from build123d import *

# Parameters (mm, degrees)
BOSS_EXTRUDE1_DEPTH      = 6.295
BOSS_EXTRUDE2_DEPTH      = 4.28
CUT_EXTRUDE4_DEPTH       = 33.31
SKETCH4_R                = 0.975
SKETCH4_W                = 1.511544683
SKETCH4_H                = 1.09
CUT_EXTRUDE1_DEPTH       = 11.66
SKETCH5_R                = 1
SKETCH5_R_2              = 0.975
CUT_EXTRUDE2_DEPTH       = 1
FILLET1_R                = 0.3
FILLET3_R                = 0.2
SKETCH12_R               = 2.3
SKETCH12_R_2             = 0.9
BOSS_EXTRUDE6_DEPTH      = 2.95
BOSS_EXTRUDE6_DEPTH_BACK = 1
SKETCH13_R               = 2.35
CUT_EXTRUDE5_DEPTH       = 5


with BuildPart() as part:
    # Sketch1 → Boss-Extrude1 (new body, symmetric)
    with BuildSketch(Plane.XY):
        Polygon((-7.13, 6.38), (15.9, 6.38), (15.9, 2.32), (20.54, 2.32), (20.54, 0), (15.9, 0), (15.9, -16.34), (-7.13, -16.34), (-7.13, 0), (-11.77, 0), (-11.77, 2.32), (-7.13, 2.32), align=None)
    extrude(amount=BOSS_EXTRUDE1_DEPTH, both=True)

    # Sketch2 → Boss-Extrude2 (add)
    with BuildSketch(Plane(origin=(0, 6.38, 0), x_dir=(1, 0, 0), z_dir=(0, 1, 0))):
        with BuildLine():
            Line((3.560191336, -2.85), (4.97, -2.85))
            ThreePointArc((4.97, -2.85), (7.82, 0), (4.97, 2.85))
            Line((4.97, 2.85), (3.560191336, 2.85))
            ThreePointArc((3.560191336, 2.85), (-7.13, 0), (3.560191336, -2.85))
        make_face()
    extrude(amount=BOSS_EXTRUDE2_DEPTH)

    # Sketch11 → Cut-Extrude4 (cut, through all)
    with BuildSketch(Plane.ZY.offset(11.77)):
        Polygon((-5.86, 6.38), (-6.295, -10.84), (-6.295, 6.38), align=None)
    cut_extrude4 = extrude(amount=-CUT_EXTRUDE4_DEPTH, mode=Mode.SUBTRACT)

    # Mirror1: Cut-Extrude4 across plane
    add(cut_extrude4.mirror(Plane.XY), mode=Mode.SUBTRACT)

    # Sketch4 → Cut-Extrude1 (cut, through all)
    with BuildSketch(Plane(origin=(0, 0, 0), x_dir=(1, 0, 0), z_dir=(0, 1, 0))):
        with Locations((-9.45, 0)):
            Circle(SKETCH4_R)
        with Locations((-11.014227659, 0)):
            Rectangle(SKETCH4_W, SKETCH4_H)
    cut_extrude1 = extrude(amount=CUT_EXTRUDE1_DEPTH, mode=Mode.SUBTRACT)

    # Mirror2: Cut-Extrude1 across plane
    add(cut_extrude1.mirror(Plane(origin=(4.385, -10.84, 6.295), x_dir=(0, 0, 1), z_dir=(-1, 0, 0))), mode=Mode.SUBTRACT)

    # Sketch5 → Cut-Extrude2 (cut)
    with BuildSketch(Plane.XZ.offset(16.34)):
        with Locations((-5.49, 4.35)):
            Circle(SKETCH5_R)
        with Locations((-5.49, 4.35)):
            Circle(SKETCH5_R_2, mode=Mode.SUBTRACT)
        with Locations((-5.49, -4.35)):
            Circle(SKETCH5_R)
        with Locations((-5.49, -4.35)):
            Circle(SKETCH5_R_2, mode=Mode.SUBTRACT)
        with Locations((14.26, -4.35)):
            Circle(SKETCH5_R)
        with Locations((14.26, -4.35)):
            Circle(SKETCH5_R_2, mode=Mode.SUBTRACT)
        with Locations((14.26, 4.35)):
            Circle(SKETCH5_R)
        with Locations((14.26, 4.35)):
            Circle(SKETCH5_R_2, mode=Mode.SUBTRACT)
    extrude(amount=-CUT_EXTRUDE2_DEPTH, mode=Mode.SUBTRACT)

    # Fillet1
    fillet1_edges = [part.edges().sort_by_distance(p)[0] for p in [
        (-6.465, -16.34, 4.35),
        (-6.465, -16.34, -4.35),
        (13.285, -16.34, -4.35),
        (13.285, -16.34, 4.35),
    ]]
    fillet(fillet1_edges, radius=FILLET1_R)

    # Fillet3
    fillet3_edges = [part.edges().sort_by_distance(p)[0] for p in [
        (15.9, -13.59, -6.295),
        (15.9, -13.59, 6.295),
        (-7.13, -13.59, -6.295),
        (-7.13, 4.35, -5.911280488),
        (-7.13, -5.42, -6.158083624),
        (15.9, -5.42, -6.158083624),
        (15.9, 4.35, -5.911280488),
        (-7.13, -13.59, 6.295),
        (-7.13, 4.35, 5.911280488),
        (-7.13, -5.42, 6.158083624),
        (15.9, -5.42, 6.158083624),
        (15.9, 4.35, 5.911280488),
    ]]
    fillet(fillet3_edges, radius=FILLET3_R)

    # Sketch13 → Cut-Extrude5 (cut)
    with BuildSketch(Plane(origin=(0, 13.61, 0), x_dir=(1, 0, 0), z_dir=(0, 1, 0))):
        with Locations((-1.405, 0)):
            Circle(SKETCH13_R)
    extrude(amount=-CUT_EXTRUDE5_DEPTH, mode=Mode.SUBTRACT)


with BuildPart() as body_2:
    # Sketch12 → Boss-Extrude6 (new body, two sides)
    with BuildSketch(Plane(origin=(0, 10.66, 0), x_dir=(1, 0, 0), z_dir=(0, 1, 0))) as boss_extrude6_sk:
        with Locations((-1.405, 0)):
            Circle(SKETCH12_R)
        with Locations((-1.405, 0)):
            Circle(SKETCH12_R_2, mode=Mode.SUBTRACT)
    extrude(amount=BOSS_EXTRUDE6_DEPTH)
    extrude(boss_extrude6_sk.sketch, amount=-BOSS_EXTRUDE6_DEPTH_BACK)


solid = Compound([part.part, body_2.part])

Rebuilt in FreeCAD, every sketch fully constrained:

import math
import FreeCAD as App
import Part
import Sketcher

V = App.Vector


def edges_at(feature, points):
    """Names of the edges that pass closest to the given points."""
    edges = feature.Shape.Edges
    near = lambda p: min(range(len(edges)), key=lambda i: edges[i].distToShape(Part.Vertex(*p))[0])
    return sorted({f"Edge{near(p) + 1}" for p in points})


def add_polygon(sketch, points):
    """Adds a closed chain of lines whose ends are joined by coincident constraints."""
    first, n = sketch.GeometryCount, len(points)
    for a, b in zip(points, points[1:] + points[:1]):
        sketch.addGeometry(Part.LineSegment(App.Vector(*a, 0), App.Vector(*b, 0)), False)
    for i in range(n):
        sketch.addConstraint(Sketcher.Constraint("Coincident", first + i, 2, first + (i + 1) % n, 1))

doc = App.newDocument("Part")
body = doc.addObject("PartDesign::Body", "Body")

# Sketch on XY plane
sketch1 = body.newObject("Sketcher::SketchObject", "Sketch")
sketch1.AttachmentSupport = (doc.getObject("XY_Plane"), [""])
sketch1.MapMode = "FlatFace"
add_polygon(sketch1, [(15.9, 6.4), (-7.1, 6.4), (-7.1, 2.3), (-11.8, 2.3), (-11.8, 0), (-7.1, 0), (-7.1, -16.3), (15.9, -16.3), (15.9, 0), (20.5, 0), (20.5, 2.3), (15.9, 2.3)])  # lines 0-11
sketch1.addConstraint(Sketcher.Constraint("Horizontal", 0))
sketch1.addConstraint(Sketcher.Constraint("Vertical", 1))
sketch1.addConstraint(Sketcher.Constraint("Horizontal", 2))
sketch1.addConstraint(Sketcher.Constraint("Vertical", 3))
sketch1.addConstraint(Sketcher.Constraint("Horizontal", 4))
sketch1.addConstraint(Sketcher.Constraint("Vertical", 5))
sketch1.addConstraint(Sketcher.Constraint("Horizontal", 6))
sketch1.addConstraint(Sketcher.Constraint("Vertical", 7))
sketch1.addConstraint(Sketcher.Constraint("Horizontal", 8))
sketch1.addConstraint(Sketcher.Constraint("Vertical", 9))
sketch1.addConstraint(Sketcher.Constraint("Horizontal", 10))
sketch1.addConstraint(Sketcher.Constraint("Vertical", 11))
sketch1.addConstraint(Sketcher.Constraint("PointOnObject", 3, 2, -1))
sketch1.addConstraint(Sketcher.Constraint("PointOnObject", 7, 2, -1))
sketch1.addConstraint(Sketcher.Constraint("Horizontal", 2, 2, 9, 2))
sketch1.addConstraint(Sketcher.Constraint("Vertical", 1, 2, 4, 2))
sketch1.addConstraint(Sketcher.Constraint("Vertical", 7, 2, 10, 2))
sketch1.addConstraint(Sketcher.Constraint("Equal", 4, 8))
sketch1.addConstraint(Sketcher.Constraint("DistanceX", 0, 2, 0, 1, 23.03))
sketch1.addConstraint(Sketcher.Constraint("DistanceX", 2, 2, 2, 1, 4.64))
sketch1.addConstraint(Sketcher.Constraint("DistanceY", 1, 2, 1, 1, 4.06))
sketch1.addConstraint(Sketcher.Constraint("DistanceY", 3, 2, 3, 1, 2.32))
sketch1.addConstraint(Sketcher.Constraint("DistanceY", 5, 2, 5, 1, 16.34))
sketch1.addConstraint(Sketcher.Constraint("DistanceX", -1, 1, 6, 2, 15.9))
pad1 = body.newObject("PartDesign::Pad", "Pad")
pad1.Profile = sketch1
pad1.Length = 12.59
pad1.Midplane = True

# Sketch on XZ plane
sketch2 = body.newObject("Sketcher::SketchObject", "Sketch001")
sketch2.AttachmentSupport = (doc.getObject("XZ_Plane"), [""])
sketch2.MapMode = "FlatFace"
sketch2.AttachmentOffset = App.Placement(V(0, 0, -6.38), App.Rotation())
sketch2.addGeometry(Part.LineSegment(V(3.6, 2.9, 0), V(5, 2.9, 0)), False)
sketch2.addGeometry(Part.ArcOfCircle(Part.Circle(V(5, 0, 0), V(0, 0, 1), 2.9), math.radians(-90), math.radians(90)), False)
sketch2.addGeometry(Part.LineSegment(V(5, -2.9, 0), V(3.6, -2.9, 0)), False)
sketch2.addGeometry(Part.ArcOfCircle(Part.Circle(V(-1.4, 0, 0), V(0, 0, 1), 5.7), math.radians(30), math.radians(330)), False)
sketch2.addConstraint(Sketcher.Constraint("Tangent", 0, 2, 1, 2))
sketch2.addConstraint(Sketcher.Constraint("Tangent", 1, 1, 2, 1))
sketch2.addConstraint(Sketcher.Constraint("Coincident", 2, 2, 3, 2))
sketch2.addConstraint(Sketcher.Constraint("Coincident", 3, 1, 0, 1))
sketch2.addConstraint(Sketcher.Constraint("Horizontal", 0))
sketch2.addConstraint(Sketcher.Constraint("Horizontal", 2))
sketch2.addConstraint(Sketcher.Constraint("Symmetric", 2, 2, 3, 1, -1))
sketch2.addConstraint(Sketcher.Constraint("Radius", 1, 2.85))
sketch2.addConstraint(Sketcher.Constraint("Radius", 3, 5.725))
sketch2.addConstraint(Sketcher.Constraint("DistanceX", -1, 1, 1, 3, 4.97))
sketch2.addConstraint(Sketcher.Constraint("DistanceX", 3, 3, -1, 1, 1.405))
pad2 = body.newObject("PartDesign::Pad", "Pad001")
pad2.Profile = sketch2
pad2.Length = 4.28
pad2.Reversed = True

# Sketch on YZ plane
sketch3 = body.newObject("Sketcher::SketchObject", "Sketch002")
sketch3.AttachmentSupport = (doc.getObject("YZ_Plane"), [""])
sketch3.MapMode = "FlatFace"
sketch3.AttachmentOffset = App.Placement(V(0, 0, -11.77), App.Rotation())
add_polygon(sketch3, [(-10.84, -6.29), (6.38, -5.86), (6.38, -6.29)])  # lines 0-2
sketch3.addConstraint(Sketcher.Constraint("Vertical", 1))
sketch3.addConstraint(Sketcher.Constraint("Horizontal", 2))
sketch3.addConstraint(Sketcher.Constraint("DistanceX", 2, 2, 2, 1, 17.22))
sketch3.addConstraint(Sketcher.Constraint("DistanceY", 1, 2, 1, 1, 0.435))
sketch3.addConstraint(Sketcher.Constraint("DistanceX", -1, 1, 0, 2, 6.38))
sketch3.addConstraint(Sketcher.Constraint("DistanceY", 0, 2, -1, 1, 5.86))
pocket1 = body.newObject("PartDesign::Pocket", "Pocket")
pocket1.Profile = sketch3
pocket1.Type = "ThroughAll"
pocket1.Reversed = True
doc.recompute()

mirrored = body.newObject("PartDesign::Mirrored", "Mirrored")
mirrored.Originals = [pocket1]
mirrored.MirrorPlane = (doc.getObject("XY_Plane"), [""])
body.Tip = mirrored

# Sketch on XZ plane
sketch4 = body.newObject("Sketcher::SketchObject", "Sketch003")
sketch4.AttachmentSupport = (doc.getObject("XZ_Plane"), [""])
sketch4.MapMode = "FlatFace"
sketch4.addGeometry(Part.ArcOfCircle(Part.Circle(V(-9.4, 0, 0), V(0, 0, 1), 1), math.radians(-146), math.radians(146)), False)
sketch4.addGeometry(Part.LineSegment(V(-10.3, -0.5, 0), V(-11.8, -0.5, 0)), False)
sketch4.addGeometry(Part.LineSegment(V(-11.8, -0.5, 0), V(-11.8, 0.5, 0)), False)
sketch4.addGeometry(Part.LineSegment(V(-11.8, 0.5, 0), V(-10.3, 0.5, 0)), False)
sketch4.addConstraint(Sketcher.Constraint("Coincident", 0, 1, 1, 1))
sketch4.addConstraint(Sketcher.Constraint("Coincident", 1, 2, 2, 1))
sketch4.addConstraint(Sketcher.Constraint("Coincident", 2, 2, 3, 1))
sketch4.addConstraint(Sketcher.Constraint("Coincident", 3, 2, 0, 2))
sketch4.addConstraint(Sketcher.Constraint("Horizontal", 1))
sketch4.addConstraint(Sketcher.Constraint("Vertical", 2))
sketch4.addConstraint(Sketcher.Constraint("Horizontal", 3))
sketch4.addConstraint(Sketcher.Constraint("Symmetric", 0, 1, 3, 2, -1))
sketch4.addConstraint(Sketcher.Constraint("Radius", 0, 0.975))
sketch4.addConstraint(Sketcher.Constraint("DistanceY", 2, 1, 2, 2, 1.09))
sketch4.addConstraint(Sketcher.Constraint("DistanceX", 0, 3, -1, 1, 9.45))
sketch4.addConstraint(Sketcher.Constraint("DistanceX", 1, 2, -1, 1, 11.77))
pocket2 = body.newObject("PartDesign::Pocket", "Pocket001")
pocket2.Profile = sketch4
pocket2.Type = "ThroughAll"
doc.recompute()

datumplane = body.newObject("PartDesign::Plane", "DatumPlane")
datumplane.AttachmentSupport = (doc.getObject("YZ_Plane"), [""])
datumplane.MapMode = "FlatFace"
datumplane.AttachmentOffset = App.Placement(V(0, 0, 4.385), App.Rotation())
mirrored2 = body.newObject("PartDesign::Mirrored", "Mirrored001")
mirrored2.Originals = [pocket2]
mirrored2.MirrorPlane = (datumplane, [""])
body.Tip = mirrored2

# Sketch on XZ plane
sketch5 = body.newObject("Sketcher::SketchObject", "Sketch004")
sketch5.AttachmentSupport = (doc.getObject("XZ_Plane"), [""])
sketch5.MapMode = "FlatFace"
sketch5.AttachmentOffset = App.Placement(V(0, 0, 16.34), App.Rotation())
sketch5.addGeometry(Part.Circle(V(-5.5, 4.3, 0), V(0, 0, 1), 1), False)
sketch5.addGeometry(Part.Circle(V(-5.5, 4.3, 0), V(0, 0, 1), 1), False)
sketch5.addGeometry(Part.Circle(V(-5.5, -4.3, 0), V(0, 0, 1), 1), False)
sketch5.addGeometry(Part.Circle(V(-5.5, -4.3, 0), V(0, 0, 1), 1), False)
sketch5.addGeometry(Part.Circle(V(14.3, -4.3, 0), V(0, 0, 1), 1), False)
sketch5.addGeometry(Part.Circle(V(14.3, -4.3, 0), V(0, 0, 1), 1), False)
sketch5.addGeometry(Part.Circle(V(14.3, 4.3, 0), V(0, 0, 1), 1), False)
sketch5.addGeometry(Part.Circle(V(14.3, 4.3, 0), V(0, 0, 1), 1), False)
sketch5.addConstraint(Sketcher.Constraint("Coincident", 1, 3, 0, 3))
sketch5.addConstraint(Sketcher.Constraint("Coincident", 3, 3, 2, 3))
sketch5.addConstraint(Sketcher.Constraint("Coincident", 5, 3, 4, 3))
sketch5.addConstraint(Sketcher.Constraint("Coincident", 7, 3, 6, 3))
sketch5.addConstraint(Sketcher.Constraint("Equal", 0, 2))
sketch5.addConstraint(Sketcher.Constraint("Equal", 1, 3))
sketch5.addConstraint(Sketcher.Constraint("Equal", 2, 4))
sketch5.addConstraint(Sketcher.Constraint("Equal", 3, 5))
sketch5.addConstraint(Sketcher.Constraint("Equal", 4, 6))
sketch5.addConstraint(Sketcher.Constraint("Equal", 5, 7))
sketch5.addConstraint(Sketcher.Constraint("Symmetric", 0, 3, 2, 3, -1))
sketch5.addConstraint(Sketcher.Constraint("Symmetric", 4, 3, 6, 3, -1))
sketch5.addConstraint(Sketcher.Constraint("Horizontal", 3, 3, 4, 3))
sketch5.addConstraint(Sketcher.Constraint("Diameter", 0, 2.0))
sketch5.addConstraint(Sketcher.Constraint("Diameter", 1, 1.95))
sketch5.addConstraint(Sketcher.Constraint("DistanceY", 2, 3, 0, 3, 8.7))
sketch5.addConstraint(Sketcher.Constraint("DistanceX", 0, 3, -1, 1, 5.49))
sketch5.addConstraint(Sketcher.Constraint("DistanceX", -1, 1, 4, 3, 14.26))
pocket3 = body.newObject("PartDesign::Pocket", "Pocket002")
pocket3.Profile = sketch5
pocket3.Length = 1
doc.recompute()

fillet = body.newObject("PartDesign::Fillet", "Fillet")
fillet.Base = (pocket3, edges_at(pocket3, [
    (-6.465, -16.34, 4.35),
    (-6.465, -16.34, -4.35),
    (13.285, -16.34, -4.35),
    (13.285, -16.34, 4.35),
]))
fillet.Radius = 0.3
doc.recompute()

fillet2 = body.newObject("PartDesign::Fillet", "Fillet001")
fillet2.Base = (fillet, edges_at(fillet, [
    (15.9, -13.59, -6.295),
    (15.9, -13.59, 6.295),
    (-7.13, -13.59, -6.295),
    (-7.13, 4.35, -5.911),
    (-7.13, -5.42, -6.158),
    (15.9, -5.42, -6.158),
    (15.9, 4.35, -5.911),
    (-7.13, -13.59, 6.295),
    (-7.13, 4.35, 5.911),
    (-7.13, -5.42, 6.158),
    (15.9, -5.42, 6.158),
    (15.9, 4.35, 5.911),
]))
fillet2.Radius = 0.2

# Sketch on XZ plane
sketch6 = body.newObject("Sketcher::SketchObject", "Sketch005")
sketch6.AttachmentSupport = (doc.getObject("XZ_Plane"), [""])
sketch6.MapMode = "FlatFace"
sketch6.AttachmentOffset = App.Placement(V(0, 0, -13.61), App.Rotation())
sketch6.addGeometry(Part.Circle(V(-1.4, 0, 0), V(0, 0, 1), 2.4), False)
sketch6.addConstraint(Sketcher.Constraint("PointOnObject", 0, 3, -1))
sketch6.addConstraint(Sketcher.Constraint("Diameter", 0, 4.7))
sketch6.addConstraint(Sketcher.Constraint("DistanceX", 0, 3, -1, 1, 1.405))
pocket4 = body.newObject("PartDesign::Pocket", "Pocket003")
pocket4.Profile = sketch6
pocket4.Length = 5
pocket4.Reversed = True
body2 = doc.addObject("PartDesign::Body", "Body001")

# Sketch on XZ plane
sketch7 = body2.newObject("Sketcher::SketchObject", "Sketch006")
sketch7.AttachmentSupport = (doc.getObject("XZ_Plane001"), [""])
sketch7.MapMode = "FlatFace"
sketch7.AttachmentOffset = App.Placement(V(0, 0, -10.66), App.Rotation())
sketch7.addGeometry(Part.Circle(V(-1.4, 0, 0), V(0, 0, 1), 2.3), False)
sketch7.addGeometry(Part.Circle(V(-1.4, 0, 0), V(0, 0, 1), 0.9), False)
sketch7.addConstraint(Sketcher.Constraint("Coincident", 1, 3, 0, 3))
sketch7.addConstraint(Sketcher.Constraint("PointOnObject", 0, 3, -1))
sketch7.addConstraint(Sketcher.Constraint("Diameter", 0, 4.6))
sketch7.addConstraint(Sketcher.Constraint("Diameter", 1, 1.8))
sketch7.addConstraint(Sketcher.Constraint("DistanceX", 0, 3, -1, 1, 1.405))
pad3 = body2.newObject("PartDesign::Pad", "Pad002")
pad3.Profile = sketch7
pad3.Type = "TwoLengths"
pad3.Length = 2.95
pad3.Length2 = 1
pad3.Reversed = True

doc.recompute()
